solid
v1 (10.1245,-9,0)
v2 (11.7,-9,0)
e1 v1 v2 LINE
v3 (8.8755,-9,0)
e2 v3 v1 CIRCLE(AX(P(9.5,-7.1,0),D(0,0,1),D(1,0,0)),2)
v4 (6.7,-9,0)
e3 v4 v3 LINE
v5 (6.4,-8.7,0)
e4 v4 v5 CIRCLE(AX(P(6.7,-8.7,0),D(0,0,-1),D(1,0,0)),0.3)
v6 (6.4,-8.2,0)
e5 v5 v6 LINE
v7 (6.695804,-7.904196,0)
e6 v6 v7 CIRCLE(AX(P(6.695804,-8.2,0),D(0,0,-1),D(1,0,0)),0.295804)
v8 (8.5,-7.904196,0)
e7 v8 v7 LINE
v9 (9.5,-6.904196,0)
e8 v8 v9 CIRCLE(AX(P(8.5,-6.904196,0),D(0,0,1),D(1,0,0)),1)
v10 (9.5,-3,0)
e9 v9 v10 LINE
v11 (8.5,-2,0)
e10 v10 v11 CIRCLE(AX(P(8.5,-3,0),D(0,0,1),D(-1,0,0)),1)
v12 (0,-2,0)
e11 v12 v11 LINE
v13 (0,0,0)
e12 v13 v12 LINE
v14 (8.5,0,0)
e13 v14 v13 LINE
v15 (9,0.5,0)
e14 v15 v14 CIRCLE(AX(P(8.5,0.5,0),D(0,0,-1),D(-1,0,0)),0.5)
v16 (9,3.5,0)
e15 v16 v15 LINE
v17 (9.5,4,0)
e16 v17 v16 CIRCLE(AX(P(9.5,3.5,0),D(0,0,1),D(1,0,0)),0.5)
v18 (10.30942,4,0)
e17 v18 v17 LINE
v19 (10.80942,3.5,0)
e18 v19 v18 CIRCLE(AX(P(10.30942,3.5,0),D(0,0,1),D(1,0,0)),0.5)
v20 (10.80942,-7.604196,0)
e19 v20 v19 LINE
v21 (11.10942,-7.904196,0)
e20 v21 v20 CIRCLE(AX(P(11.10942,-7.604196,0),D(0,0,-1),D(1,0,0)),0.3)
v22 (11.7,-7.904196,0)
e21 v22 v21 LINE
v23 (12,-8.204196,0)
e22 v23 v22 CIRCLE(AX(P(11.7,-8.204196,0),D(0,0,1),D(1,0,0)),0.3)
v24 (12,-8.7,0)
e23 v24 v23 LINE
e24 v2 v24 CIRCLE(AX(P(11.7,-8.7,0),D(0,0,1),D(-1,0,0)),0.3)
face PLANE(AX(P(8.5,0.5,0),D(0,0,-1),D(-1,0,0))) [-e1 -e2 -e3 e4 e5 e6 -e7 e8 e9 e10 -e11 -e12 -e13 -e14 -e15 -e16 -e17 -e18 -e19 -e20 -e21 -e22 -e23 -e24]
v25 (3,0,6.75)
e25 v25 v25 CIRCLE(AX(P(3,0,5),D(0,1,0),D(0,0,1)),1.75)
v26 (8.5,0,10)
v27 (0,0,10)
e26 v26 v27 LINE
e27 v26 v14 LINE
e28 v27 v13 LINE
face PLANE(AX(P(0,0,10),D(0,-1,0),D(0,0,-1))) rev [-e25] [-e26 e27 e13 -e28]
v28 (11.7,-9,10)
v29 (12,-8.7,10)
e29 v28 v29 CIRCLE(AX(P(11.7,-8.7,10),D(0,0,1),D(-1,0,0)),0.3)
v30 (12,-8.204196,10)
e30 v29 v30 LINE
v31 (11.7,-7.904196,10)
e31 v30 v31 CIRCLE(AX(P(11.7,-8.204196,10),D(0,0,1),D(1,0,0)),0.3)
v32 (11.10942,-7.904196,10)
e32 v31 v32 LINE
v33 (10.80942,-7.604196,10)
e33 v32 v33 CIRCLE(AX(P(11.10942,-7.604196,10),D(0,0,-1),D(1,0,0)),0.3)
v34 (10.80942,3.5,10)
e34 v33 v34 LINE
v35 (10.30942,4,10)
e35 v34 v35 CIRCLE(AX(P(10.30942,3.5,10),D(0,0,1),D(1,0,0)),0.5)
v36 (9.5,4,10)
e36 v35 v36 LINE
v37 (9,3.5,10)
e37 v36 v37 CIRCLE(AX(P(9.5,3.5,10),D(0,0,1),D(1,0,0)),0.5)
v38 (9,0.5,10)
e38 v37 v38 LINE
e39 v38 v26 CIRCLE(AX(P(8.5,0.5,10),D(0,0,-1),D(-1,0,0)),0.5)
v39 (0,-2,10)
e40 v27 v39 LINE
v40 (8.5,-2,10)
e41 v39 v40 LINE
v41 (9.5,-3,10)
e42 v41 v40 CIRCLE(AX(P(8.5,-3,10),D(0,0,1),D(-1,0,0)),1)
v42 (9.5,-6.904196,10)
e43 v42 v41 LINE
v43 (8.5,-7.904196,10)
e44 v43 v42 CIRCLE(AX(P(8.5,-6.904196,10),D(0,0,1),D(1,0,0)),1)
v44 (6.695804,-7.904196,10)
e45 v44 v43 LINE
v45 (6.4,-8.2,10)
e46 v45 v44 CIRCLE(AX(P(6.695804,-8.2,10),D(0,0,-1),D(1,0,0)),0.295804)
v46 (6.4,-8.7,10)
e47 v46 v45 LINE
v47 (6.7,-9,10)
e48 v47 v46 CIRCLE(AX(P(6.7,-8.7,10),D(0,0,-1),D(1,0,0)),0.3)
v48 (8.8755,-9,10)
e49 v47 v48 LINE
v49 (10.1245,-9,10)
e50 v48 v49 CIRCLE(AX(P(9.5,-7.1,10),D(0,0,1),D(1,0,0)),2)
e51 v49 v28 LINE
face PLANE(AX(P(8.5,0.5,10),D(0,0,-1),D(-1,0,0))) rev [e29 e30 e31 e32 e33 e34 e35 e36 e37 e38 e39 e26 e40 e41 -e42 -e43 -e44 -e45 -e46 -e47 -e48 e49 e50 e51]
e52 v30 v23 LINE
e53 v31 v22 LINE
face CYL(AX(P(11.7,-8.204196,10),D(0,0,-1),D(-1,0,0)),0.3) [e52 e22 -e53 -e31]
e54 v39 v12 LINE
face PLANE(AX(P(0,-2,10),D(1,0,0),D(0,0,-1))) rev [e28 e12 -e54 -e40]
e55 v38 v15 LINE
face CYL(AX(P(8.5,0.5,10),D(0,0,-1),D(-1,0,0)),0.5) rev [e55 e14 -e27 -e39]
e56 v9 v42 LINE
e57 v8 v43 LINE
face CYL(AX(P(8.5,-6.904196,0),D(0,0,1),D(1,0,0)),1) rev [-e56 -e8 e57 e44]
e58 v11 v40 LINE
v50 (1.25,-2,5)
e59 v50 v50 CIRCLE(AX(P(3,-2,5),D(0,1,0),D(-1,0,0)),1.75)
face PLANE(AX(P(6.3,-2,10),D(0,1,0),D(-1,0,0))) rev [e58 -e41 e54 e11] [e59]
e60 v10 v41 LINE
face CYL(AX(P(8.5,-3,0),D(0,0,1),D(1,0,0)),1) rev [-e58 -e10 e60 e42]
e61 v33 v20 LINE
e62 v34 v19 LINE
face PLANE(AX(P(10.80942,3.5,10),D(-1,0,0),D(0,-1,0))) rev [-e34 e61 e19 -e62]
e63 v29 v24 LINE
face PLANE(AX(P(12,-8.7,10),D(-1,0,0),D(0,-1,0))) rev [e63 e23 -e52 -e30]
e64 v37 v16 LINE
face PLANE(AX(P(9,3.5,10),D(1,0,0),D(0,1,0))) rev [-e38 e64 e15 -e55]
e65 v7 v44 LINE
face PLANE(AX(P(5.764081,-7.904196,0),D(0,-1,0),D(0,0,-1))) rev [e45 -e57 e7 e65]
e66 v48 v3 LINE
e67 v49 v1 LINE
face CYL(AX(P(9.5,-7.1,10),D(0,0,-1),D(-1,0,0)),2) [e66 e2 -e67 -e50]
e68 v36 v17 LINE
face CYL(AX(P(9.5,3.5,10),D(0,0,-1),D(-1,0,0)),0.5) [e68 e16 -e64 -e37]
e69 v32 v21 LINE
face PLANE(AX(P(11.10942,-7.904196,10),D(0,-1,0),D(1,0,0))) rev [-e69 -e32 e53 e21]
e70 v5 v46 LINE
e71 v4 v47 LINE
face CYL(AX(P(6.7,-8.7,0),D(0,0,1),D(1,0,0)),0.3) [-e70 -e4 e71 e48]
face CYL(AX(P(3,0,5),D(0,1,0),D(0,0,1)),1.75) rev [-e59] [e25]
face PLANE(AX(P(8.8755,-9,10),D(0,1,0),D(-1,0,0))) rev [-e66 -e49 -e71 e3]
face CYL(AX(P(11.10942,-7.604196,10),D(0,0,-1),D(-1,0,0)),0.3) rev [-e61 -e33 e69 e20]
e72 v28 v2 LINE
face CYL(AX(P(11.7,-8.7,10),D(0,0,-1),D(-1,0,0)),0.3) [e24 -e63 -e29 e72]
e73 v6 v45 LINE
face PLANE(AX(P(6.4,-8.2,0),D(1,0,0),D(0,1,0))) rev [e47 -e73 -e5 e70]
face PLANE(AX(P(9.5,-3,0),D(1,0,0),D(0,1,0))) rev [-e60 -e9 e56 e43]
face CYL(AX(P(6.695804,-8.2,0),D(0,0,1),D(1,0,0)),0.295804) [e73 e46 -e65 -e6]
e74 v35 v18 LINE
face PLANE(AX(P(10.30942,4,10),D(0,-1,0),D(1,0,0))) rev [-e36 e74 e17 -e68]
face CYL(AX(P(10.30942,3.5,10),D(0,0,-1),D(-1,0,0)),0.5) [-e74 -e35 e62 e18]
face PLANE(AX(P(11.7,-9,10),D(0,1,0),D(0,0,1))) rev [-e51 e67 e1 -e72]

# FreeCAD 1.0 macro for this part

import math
import FreeCAD as App
import Part
import Sketcher

doc = App.newDocument("Part")
params = doc.addObject("Spreadsheet::Sheet", "Params")
for row, (alias, value) in enumerate([
    ("sketch1_radius", "2 mm"),
    ("sketch1_radius2", "0.2 mm"),
    ("sketch1_radius3", "0.3 mm"),
    ("sketch1_radius4", "0.5 mm"),
    ("sketch1_height", "2 mm"),
    ("pad1_length", "10 mm"),
    ("sketch2_diameter", "3.5 mm"),
    ("hole_diameter", "3.5 mm"),
    ("sketch3_radius", "1 mm"),
    ("pocket1_length", "10 mm"),
    ("sketch4_radius", "0.3 mm"),
    ("sketch4_width", "0.4 mm"),
    ("sketch4_height", "0.5 mm"),
    ("pocket2_length", "10 mm"),
], start=1):
    params.set(f"A{row}", alias)
    params.set(f"B{row}", "=" + value)
    params.setAlias(f"B{row}", alias)

body = doc.addObject("PartDesign::Body", "Body")

sketch1 = doc.addObject("Sketcher::SketchObject", "Sketch")
body.addObject(sketch1)
sketch1.AttachmentSupport = (doc.XY_Plane, [""])
sketch1.MapMode = "FlatFace"
sketch1.addGeometry([
    Part.LineSegment(App.Vector(8.5, 0, 0), App.Vector(0, 0, 0)),
    Part.LineSegment(App.Vector(0, 0, 0), App.Vector(0, -2, 0)),
    Part.LineSegment(App.Vector(0, -2, 0), App.Vector(6.3, -2, 0)),
    Part.ArcOfCircle(Part.Circle(App.Vector(6.3, -2.2, 0), App.Vector(0, 0, 1), 0.2), math.radians(0), math.radians(90)),
    Part.LineSegment(App.Vector(6.5, -2.2, 0), App.Vector(6.5, -7.608392, 0)),
    Part.ArcOfCircle(Part.Circle(App.Vector(6.2, -7.608392, 0), App.Vector(0, 0, 1), 0.3), math.radians(-80.405932), math.radians(0)),
    Part.ArcOfCircle(Part.Circle(App.Vector(6.3, -8.2, 0), App.Vector(0, 0, 1), 0.3), math.radians(99.594068), math.radians(180)),
    Part.LineSegment(App.Vector(6, -8.2, 0), App.Vector(6, -8.7, 0)),
    Part.ArcOfCircle(Part.Circle(App.Vector(6.3, -8.7, 0), App.Vector(0, 0, 1), 0.3), math.radians(-180), math.radians(-90)),
    Part.LineSegment(App.Vector(6.3, -9, 0), App.Vector(8.8755, -9, 0)),
    Part.ArcOfCircle(Part.Circle(App.Vector(9.5, -7.1, 0), App.Vector(0, 0, 1), 2), math.radians(-108.194872), math.radians(-71.805128)),
    Part.LineSegment(App.Vector(10.1245, -9, 0), App.Vector(11.7, -9, 0)),
    Part.ArcOfCircle(Part.Circle(App.Vector(11.7, -8.7, 0), App.Vector(0, 0, 1), 0.3), math.radians(-90), math.radians(0)),
    Part.LineSegment(App.Vector(12, -8.7, 0), App.Vector(12, -8.204196, 0)),
    Part.ArcOfCircle(Part.Circle(App.Vector(11.7, -8.204196, 0), App.Vector(0, 0, 1), 0.3), math.radians(0), math.radians(90)),
    Part.LineSegment(App.Vector(11.7, -7.904196, 0), App.Vector(11.10942, -7.904196, 0)),
    Part.ArcOfCircle(Part.Circle(App.Vector(11.10942, -7.604196, 0), App.Vector(0, 0, 1), 0.3), math.radians(180), math.radians(270)),
    Part.LineSegment(App.Vector(10.80942, -7.604196, 0), App.Vector(10.80942, 3.5, 0)),
    Part.ArcOfCircle(Part.Circle(App.Vector(10.30942, 3.5, 0), App.Vector(0, 0, 1), 0.5), math.radians(0), math.radians(90)),
    Part.LineSegment(App.Vector(10.30942, 4, 0), App.Vector(9.5, 4, 0)),
    Part.ArcOfCircle(Part.Circle(App.Vector(9.5, 3.5, 0), App.Vector(0, 0, 1), 0.5), math.radians(90), math.radians(180)),
    Part.LineSegment(App.Vector(9, 3.5, 0), App.Vector(9, 0.5, 0)),
    Part.ArcOfCircle(Part.Circle(App.Vector(8.5, 0.5, 0), App.Vector(0, 0, 1), 0.5), math.radians(-90), math.radians(0)),
], False)
sketch1.addConstraint([
    Sketcher.Constraint("Coincident", 0, 2, 1, 1),
    Sketcher.Constraint("Coincident", 1, 2, 2, 1),
    Sketcher.Constraint("Tangent", 2, 2, 3, 2),
    Sketcher.Constraint("Tangent", 3, 1, 4, 1),
    Sketcher.Constraint("Tangent", 4, 2, 5, 2),
    Sketcher.Constraint("Tangent", 5, 1, 6, 1),
    Sketcher.Constraint("Tangent", 6, 2, 7, 1),
    Sketcher.Constraint("Tangent", 7, 2, 8, 1),
    Sketcher.Constraint("Tangent", 8, 2, 9, 1),
    Sketcher.Constraint("Coincident", 9, 2, 10, 1),
    Sketcher.Constraint("Coincident", 10, 2, 11, 1),
    Sketcher.Constraint("Tangent", 11, 2, 12, 1),
    Sketcher.Constraint("Tangent", 12, 2, 13, 1),
    Sketcher.Constraint("Tangent", 13, 2, 14, 1),
    Sketcher.Constraint("Tangent", 14, 2, 15, 1),
    Sketcher.Constraint("Tangent", 15, 2, 16, 2),
    Sketcher.Constraint("Tangent", 16, 1, 17, 1),
    Sketcher.Constraint("Tangent", 17, 2, 18, 1),
    Sketcher.Constraint("Tangent", 18, 2, 19, 1),
    Sketcher.Constraint("Tangent", 19, 2, 20, 1),
    Sketcher.Constraint("Tangent", 20, 2, 21, 1),
    Sketcher.Constraint("Tangent", 21, 2, 22, 2),
    Sketcher.Constraint("Tangent", 22, 1, 0, 1),
    Sketcher.Constraint("Horizontal", 0),
    Sketcher.Constraint("Vertical", 1),
    Sketcher.Constraint("Horizontal", 2),
    Sketcher.Constraint("Vertical", 4),
    Sketcher.Constraint("Vertical", 7),
    Sketcher.Constraint("Horizontal", 9),
    Sketcher.Constraint("Horizontal", 11),
    Sketcher.Constraint("Vertical", 13),
    Sketcher.Constraint("Horizontal", 15),
    Sketcher.Constraint("Vertical", 17),
    Sketcher.Constraint("Horizontal", 19),
    Sketcher.Constraint("Vertical", 21),
    Sketcher.Constraint("Coincident", 0, 2, -1, 1),
    Sketcher.Constraint("Equal", 5, 6),
    Sketcher.Constraint("Equal", 6, 8),
    Sketcher.Constraint("Equal", 8, 12),
    Sketcher.Constraint("Equal", 12, 14),
    Sketcher.Constraint("Equal", 14, 16),
    Sketcher.Constraint("Equal", 18, 20),
    Sketcher.Constraint("Equal", 20, 22),
    Sketcher.Constraint("Horizontal", 8, 3, 12, 3),
    Sketcher.Constraint("Horizontal", 5, 1, 14, 2),
    Sketcher.Constraint("Vertical", 3, 3, 6, 3),
    Sketcher.Constraint("Vertical", 10, 3, 20, 3),
    Sketcher.Constraint("Radius", 10, 2.0),
    Sketcher.Constraint("Radius", 3, 0.2),
    Sketcher.Constraint("Radius", 5, 0.3),
    Sketcher.Constraint("Radius", 18, 0.5),
    Sketcher.Constraint("DistanceY", 1, 2, 1, 1, 2.0),
    Sketcher.Constraint("DistanceY", 21, 2, 21, 1, 3.0),
    Sketcher.Constraint("DistanceX", 0, 2, 0, 1, 8.5),
    Sketcher.Constraint("DistanceX", 2, 1, 2, 2, 6.3),
    Sketcher.Constraint("DistanceY", 7, 2, 7, 1, 0.5),
    Sketcher.Constraint("DistanceY", 8, 2, -1, 1, 9.0),
    Sketcher.Constraint("DistanceX", -1, 1, 12, 2, 12.0),
    Sketcher.Constraint("DistanceY", 10, 3, -1, 1, 7.1),
    Sketcher.Constraint("DistanceX", 15, 2, 15, 1, 0.59058),
])
sketch1.setExpression("Constraints[47]", "Params.sketch1_radius")
sketch1.setExpression("Constraints[48]", "Params.sketch1_radius2")
sketch1.setExpression("Constraints[49]", "Params.sketch1_radius3")
sketch1.setExpression("Constraints[50]", "Params.sketch1_radius4")
sketch1.setExpression("Constraints[51]", "Params.sketch1_height")
pad1 = doc.addObject("PartDesign::Pad", "Pad")
body.addObject(pad1)
pad1.Profile = sketch1
pad1.setExpression("Length", "Params.pad1_length")

sketch2 = doc.addObject("Sketcher::SketchObject", "Sketch001")
body.addObject(sketch2)
sketch2.AttachmentSupport = (doc.XZ_Plane, [""])
sketch2.MapMode = "FlatFace"
sketch2.addGeometry(Part.Circle(App.Vector(3, 5, 0), App.Vector(0, 0, 1), 1.75), False)
sketch2.addConstraint([
    Sketcher.Constraint("Diameter", 0, 3.5),
    Sketcher.Constraint("DistanceX", -1, 1, 0, 3, 3.0),
    Sketcher.Constraint("DistanceY", -1, 1, 0, 3, 5.0),
])
sketch2.setExpression("Constraints[0]", "Params.sketch2_diameter")
doc.recompute()
hole = doc.addObject("PartDesign::Hole", "Hole")
body.addObject(hole)
hole.Profile = sketch2
hole.ThreadType = "None"
hole.setExpression("Diameter", "Params.hole_diameter")
hole.DepthType = "ThroughAll"
hole.Reversed = True

sketch3 = doc.addObject("Sketcher::SketchObject", "Sketch002")
body.addObject(sketch3)
sketch3.AttachmentSupport = (doc.XY_Plane, [""])
sketch3.MapMode = "FlatFace"
sketch3.AttachmentOffset = App.Placement(App.Vector(0, 0, 10), App.Rotation())
sketch3.addGeometry([
    Part.LineSegment(App.Vector(8.5, -2, 0), App.Vector(5.764081, -2, 0)),
    Part.LineSegment(App.Vector(5.764081, -2, 0), App.Vector(5.764081, -7.904196, 0)),
    Part.LineSegment(App.Vector(5.764081, -7.904196, 0), App.Vector(8.5, -7.904196, 0)),
    Part.ArcOfCircle(Part.Circle(App.Vector(8.5, -6.904196, 0), App.Vector(0, 0, 1), 1), math.radians(-90), math.radians(0)),
    Part.LineSegment(App.Vector(9.5, -6.904196, 0), App.Vector(9.5, -3, 0)),
    Part.ArcOfCircle(Part.Circle(App.Vector(8.5, -3, 0), App.Vector(0, 0, 1), 1), math.radians(0), math.radians(90)),
], False)
sketch3.addConstraint([
    Sketcher.Constraint("Coincident", 0, 2, 1, 1),
    Sketcher.Constraint("Coincident", 1, 2, 2, 1),
    Sketcher.Constraint("Tangent", 2, 2, 3, 1),
    Sketcher.Constraint("Tangent", 3, 2, 4, 1),
    Sketcher.Constraint("Tangent", 4, 2, 5, 1),
    Sketcher.Constraint("Tangent", 5, 2, 0, 1),
    Sketcher.Constraint("Horizontal", 0),
    Sketcher.Constraint("Vertical", 1),
    Sketcher.Constraint("Horizontal", 2),
    Sketcher.Constraint("Vertical", 4),
    Sketcher.Constraint("Equal", 3, 5),
    Sketcher.Constraint("Radius", 3, 1.0),
    Sketcher.Constraint("DistanceY", 5, 3, -1, 1, 3.0),
    Sketcher.Constraint("DistanceX", -1, 1, 3, 3, 8.5),
    Sketcher.Constraint("DistanceX", 0, 2, 0, 1, 2.735919),
    Sketcher.Constraint("DistanceY", 1, 2, 1, 1, 5.904196),
])
sketch3.setExpression("Constraints[11]", "Params.sketch3_radius")
pocket1 = doc.addObject("PartDesign::Pocket", "Pocket")
body.addObject(pocket1)
pocket1.Profile = sketch3
pocket1.setExpression("Length", "Params.pocket1_length")

sketch4 = doc.addObject("Sketcher::SketchObject", "Sketch003")
body.addObject(sketch4)
sketch4.AttachmentSupport = (doc.XY_Plane, [""])
sketch4.MapMode = "FlatFace"
sketch4.addGeometry([
    Part.LineSegment(App.Vector(6.4, -8.7, 0), App.Vector(6.4, -8.2, 0)),
    Part.ArcOfCircle(Part.Circle(App.Vector(6.695804, -8.2, 0), App.Vector(0, 0, 1), 0.295804), math.radians(90), math.radians(180)),
    Part.LineSegment(App.Vector(6.695804, -7.904196, 0), App.Vector(6.25, -7.904196, 0)),
    Part.ArcOfCircle(Part.Circle(App.Vector(6.3, -8.2, 0), App.Vector(0, 0, 1), 0.3), math.radians(99.594068), math.radians(180)),
    Part.LineSegment(App.Vector(6, -8.2, 0), App.Vector(6, -8.7, 0)),
    Part.ArcOfCircle(Part.Circle(App.Vector(6.3, -8.7, 0), App.Vector(0, 0, 1), 0.3), math.radians(-180), math.radians(-90)),
    Part.LineSegment(App.Vector(6.3, -9, 0), App.Vector(6.7, -9, 0)),
    Part.ArcOfCircle(Part.Circle(App.Vector(6.7, -8.7, 0), App.Vector(0, 0, 1), 0.3), math.radians(-180), math.radians(-90)),
], False)
sketch4.addConstraint([
    Sketcher.Constraint("Tangent", 0, 2, 1, 2),
    Sketcher.Constraint("Tangent", 1, 1, 2, 1),
    Sketcher.Constraint("Coincident", 2, 2, 3, 1),
    Sketcher.Constraint("Tangent", 3, 2, 4, 1),
    Sketcher.Constraint("Tangent", 4, 2, 5, 1),
    Sketcher.Constraint("Tangent", 5, 2, 6, 1),
    Sketcher.Constraint("Tangent", 6, 2, 7, 2),
    Sketcher.Constraint("Tangent", 7, 1, 0, 1),
    Sketcher.Constraint("Vertical", 0),
    Sketcher.Constraint("Horizontal", 2),
    Sketcher.Constraint("Vertical", 4),
    Sketcher.Constraint("Horizontal", 6),
    Sketcher.Constraint("Equal", 3, 5),
    Sketcher.Constraint("Equal", 5, 7),
    Sketcher.Constraint("Horizontal", 1, 3, 3, 3),
    Sketcher.Constraint("Radius", 3, 0.3),
    Sketcher.Constraint("DistanceX", 6, 1, 6, 2, 0.4),
    Sketcher.Constraint("DistanceY", 0, 1, 0, 2, 0.5),
    Sketcher.Constraint("DistanceX", -1, 1, 3, 2, 6.0),
    Sketcher.Constraint("DistanceY", 5, 2, -1, 1, 9.0),
    Sketcher.Constraint("DistanceX", -1, 1, 2, 2, 6.25),
])
sketch4.setExpression("Constraints[15]", "Params.sketch4_radius")
sketch4.setExpression("Constraints[16]", "Params.sketch4_width")
sketch4.setExpression("Constraints[17]", "Params.sketch4_height")
pocket2 = doc.addObject("PartDesign::Pocket", "Pocket001")
body.addObject(pocket2)
pocket2.Profile = sketch4
pocket2.setExpression("Length", "Params.pocket2_length")
pocket2.Reversed = True

doc.recompute()
